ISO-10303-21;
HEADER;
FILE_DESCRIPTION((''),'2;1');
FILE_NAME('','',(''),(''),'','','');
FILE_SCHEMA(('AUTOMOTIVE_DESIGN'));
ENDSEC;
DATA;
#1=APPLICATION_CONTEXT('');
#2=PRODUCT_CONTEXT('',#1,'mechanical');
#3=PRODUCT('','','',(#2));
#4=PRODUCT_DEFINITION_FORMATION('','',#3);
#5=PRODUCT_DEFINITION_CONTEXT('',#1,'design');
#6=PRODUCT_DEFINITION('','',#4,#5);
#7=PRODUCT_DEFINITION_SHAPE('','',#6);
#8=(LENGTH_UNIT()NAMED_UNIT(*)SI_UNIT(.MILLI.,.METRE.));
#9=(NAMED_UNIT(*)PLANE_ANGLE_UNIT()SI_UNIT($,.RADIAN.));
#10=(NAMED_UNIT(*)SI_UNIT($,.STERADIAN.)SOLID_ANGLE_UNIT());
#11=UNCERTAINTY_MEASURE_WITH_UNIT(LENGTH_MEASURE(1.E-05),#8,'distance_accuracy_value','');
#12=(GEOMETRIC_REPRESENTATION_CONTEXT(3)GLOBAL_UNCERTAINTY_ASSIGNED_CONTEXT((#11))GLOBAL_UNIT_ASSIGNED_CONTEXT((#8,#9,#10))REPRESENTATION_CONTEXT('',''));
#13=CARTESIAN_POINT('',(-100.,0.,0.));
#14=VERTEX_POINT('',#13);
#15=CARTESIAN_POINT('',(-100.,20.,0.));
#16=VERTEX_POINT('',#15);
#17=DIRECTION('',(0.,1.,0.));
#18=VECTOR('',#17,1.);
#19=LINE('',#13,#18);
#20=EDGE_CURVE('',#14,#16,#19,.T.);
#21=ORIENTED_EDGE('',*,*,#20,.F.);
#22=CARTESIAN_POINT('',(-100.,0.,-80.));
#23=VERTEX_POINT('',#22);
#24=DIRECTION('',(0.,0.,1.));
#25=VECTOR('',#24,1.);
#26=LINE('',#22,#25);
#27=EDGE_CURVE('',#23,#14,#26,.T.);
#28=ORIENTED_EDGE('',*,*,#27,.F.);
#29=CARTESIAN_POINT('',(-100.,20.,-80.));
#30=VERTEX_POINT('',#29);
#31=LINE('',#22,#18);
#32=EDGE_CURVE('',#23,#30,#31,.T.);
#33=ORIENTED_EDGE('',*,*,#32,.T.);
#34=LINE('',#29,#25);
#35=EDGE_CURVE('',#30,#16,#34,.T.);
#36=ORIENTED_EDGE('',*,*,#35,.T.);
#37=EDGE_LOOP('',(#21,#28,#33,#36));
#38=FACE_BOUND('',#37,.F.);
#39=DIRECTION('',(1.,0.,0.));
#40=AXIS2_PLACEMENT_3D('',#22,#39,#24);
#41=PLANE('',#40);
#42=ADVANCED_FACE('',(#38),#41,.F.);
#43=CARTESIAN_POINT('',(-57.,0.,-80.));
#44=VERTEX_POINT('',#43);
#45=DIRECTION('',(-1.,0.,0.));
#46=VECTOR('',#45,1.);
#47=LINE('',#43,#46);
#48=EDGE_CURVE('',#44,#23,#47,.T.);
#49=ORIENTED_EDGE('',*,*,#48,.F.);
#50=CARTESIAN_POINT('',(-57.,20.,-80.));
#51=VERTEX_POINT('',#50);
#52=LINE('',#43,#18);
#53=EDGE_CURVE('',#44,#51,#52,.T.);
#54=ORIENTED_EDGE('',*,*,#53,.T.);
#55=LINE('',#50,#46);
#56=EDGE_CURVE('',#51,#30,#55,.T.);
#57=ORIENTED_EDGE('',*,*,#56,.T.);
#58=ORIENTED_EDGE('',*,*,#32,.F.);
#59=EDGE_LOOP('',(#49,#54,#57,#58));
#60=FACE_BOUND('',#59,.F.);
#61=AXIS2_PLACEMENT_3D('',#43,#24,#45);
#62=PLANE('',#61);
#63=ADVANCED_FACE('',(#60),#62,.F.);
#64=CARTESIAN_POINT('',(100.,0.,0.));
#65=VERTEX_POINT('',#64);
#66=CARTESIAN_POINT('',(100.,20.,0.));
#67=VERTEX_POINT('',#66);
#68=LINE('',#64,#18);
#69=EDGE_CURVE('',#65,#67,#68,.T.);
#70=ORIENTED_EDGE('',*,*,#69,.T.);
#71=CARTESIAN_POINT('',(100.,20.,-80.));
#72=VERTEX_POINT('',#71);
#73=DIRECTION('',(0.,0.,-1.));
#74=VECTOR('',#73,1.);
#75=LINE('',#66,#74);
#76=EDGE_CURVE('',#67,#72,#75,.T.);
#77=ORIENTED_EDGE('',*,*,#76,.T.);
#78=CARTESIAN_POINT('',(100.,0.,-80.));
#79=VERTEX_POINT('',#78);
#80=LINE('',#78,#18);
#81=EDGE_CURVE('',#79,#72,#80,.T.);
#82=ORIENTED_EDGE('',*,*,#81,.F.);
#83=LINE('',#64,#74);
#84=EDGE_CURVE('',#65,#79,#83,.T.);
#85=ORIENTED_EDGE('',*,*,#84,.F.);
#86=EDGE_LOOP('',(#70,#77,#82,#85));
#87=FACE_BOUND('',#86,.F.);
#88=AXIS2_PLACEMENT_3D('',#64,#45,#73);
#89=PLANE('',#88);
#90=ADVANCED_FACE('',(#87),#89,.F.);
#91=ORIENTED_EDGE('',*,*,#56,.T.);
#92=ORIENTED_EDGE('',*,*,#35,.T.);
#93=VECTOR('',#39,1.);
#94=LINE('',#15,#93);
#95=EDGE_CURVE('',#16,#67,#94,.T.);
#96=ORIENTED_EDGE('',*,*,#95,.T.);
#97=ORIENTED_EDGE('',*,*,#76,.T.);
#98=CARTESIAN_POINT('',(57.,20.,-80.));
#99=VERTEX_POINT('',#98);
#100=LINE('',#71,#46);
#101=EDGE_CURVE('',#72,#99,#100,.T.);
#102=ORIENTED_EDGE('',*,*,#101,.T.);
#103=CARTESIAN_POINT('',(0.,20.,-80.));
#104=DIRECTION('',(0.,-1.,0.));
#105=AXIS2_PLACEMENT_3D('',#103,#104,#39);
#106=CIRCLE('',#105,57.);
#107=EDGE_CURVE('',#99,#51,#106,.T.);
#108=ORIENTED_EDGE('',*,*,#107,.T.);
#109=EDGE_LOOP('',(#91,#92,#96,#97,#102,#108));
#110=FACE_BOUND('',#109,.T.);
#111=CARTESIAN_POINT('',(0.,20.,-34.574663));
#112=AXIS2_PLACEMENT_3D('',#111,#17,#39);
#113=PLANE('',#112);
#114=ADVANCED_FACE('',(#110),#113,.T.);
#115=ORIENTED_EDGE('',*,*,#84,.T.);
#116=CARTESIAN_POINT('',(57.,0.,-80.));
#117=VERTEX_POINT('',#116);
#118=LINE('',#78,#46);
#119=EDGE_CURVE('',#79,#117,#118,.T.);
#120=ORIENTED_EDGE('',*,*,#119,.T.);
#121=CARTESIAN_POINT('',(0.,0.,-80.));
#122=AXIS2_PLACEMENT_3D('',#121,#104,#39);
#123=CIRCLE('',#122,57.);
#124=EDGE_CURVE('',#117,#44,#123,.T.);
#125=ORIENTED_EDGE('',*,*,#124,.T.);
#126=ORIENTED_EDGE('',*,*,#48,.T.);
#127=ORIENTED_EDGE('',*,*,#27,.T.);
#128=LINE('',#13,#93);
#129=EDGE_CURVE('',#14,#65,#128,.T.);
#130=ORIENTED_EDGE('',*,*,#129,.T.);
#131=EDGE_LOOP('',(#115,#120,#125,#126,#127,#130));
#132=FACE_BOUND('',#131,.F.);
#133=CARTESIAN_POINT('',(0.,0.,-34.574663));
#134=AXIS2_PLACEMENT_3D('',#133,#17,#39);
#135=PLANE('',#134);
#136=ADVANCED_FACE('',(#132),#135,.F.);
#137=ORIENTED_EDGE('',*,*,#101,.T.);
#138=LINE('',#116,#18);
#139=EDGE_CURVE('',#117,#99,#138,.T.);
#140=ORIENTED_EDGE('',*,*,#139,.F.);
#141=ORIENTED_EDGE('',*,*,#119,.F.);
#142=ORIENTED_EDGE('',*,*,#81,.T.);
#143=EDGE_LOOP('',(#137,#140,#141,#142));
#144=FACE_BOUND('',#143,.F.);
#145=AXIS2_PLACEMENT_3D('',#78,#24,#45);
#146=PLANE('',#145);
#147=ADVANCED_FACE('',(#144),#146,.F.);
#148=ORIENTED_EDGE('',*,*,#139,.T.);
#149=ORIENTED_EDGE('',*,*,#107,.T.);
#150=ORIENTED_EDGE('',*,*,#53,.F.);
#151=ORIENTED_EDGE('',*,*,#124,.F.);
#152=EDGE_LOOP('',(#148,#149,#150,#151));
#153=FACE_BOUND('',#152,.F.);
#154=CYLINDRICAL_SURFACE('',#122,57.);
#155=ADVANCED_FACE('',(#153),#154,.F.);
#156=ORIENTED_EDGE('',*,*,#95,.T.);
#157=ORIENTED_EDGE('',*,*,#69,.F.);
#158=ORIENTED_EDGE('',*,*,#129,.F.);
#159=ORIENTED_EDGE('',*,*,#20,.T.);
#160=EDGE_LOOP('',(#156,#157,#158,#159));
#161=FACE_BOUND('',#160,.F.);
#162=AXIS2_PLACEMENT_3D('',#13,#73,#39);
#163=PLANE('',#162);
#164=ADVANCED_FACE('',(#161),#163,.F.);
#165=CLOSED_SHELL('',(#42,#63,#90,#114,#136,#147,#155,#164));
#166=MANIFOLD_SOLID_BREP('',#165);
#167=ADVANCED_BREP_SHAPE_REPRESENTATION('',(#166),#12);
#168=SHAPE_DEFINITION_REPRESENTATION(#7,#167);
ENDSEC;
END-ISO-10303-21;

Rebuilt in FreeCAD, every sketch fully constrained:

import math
import FreeCAD as App
import Part
import Sketcher
Q = App.Units.Quantity

doc = App.newDocument("Part")
body = doc.addObject("PartDesign::Body", "Body")

# Sketch on XZ plane
sketch1 = body.newObject("Sketcher::SketchObject", "Sketch")
sketch1.AttachmentSupport = (doc.getObject("XZ_Plane"), [""])
sketch1.MapMode = "FlatFace"
sketch1.addGeometry(Part.LineSegment(App.Vector(-100, 0, 0), App.Vector(100, 0, 0)), False)
sketch1.addGeometry(Part.LineSegment(App.Vector(100, 0, 0), App.Vector(100, -80, 0)), False)
sketch1.addGeometry(Part.LineSegment(App.Vector(100, -80, 0), App.Vector(57, -80, 0)), False)
sketch1.addGeometry(Part.ArcOfCircle(Part.Circle(App.Vector(0, -80, 0), App.Vector(0, 0, 1), 57), math.radians(0), math.radians(180)), False)
sketch1.addGeometry(Part.LineSegment(App.Vector(-57, -80, 0), App.Vector(-100, -80, 0)), False)
sketch1.addGeometry(Part.LineSegment(App.Vector(-100, -80, 0), App.Vector(-100, 0, 0)), False)
sketch1.addConstraint(Sketcher.Constraint("Coincident", 0, 2, 1, 1))
sketch1.addConstraint(Sketcher.Constraint("Coincident", 1, 2, 2, 1))
sketch1.addConstraint(Sketcher.Constraint("Coincident", 2, 2, 3, 1))
sketch1.addConstraint(Sketcher.Constraint("Coincident", 3, 2, 4, 1))
sketch1.addConstraint(Sketcher.Constraint("Coincident", 4, 2, 5, 1))
sketch1.addConstraint(Sketcher.Constraint("Coincident", 5, 2, 0, 1))
sketch1.addConstraint(Sketcher.Constraint("Horizontal", 0))
sketch1.addConstraint(Sketcher.Constraint("Vertical", 1))
sketch1.addConstraint(Sketcher.Constraint("Horizontal", 2))
sketch1.addConstraint(Sketcher.Constraint("Horizontal", 4))
sketch1.addConstraint(Sketcher.Constraint("Vertical", 5))
sketch1.addConstraint(Sketcher.Constraint("Symmetric", 0, 2, 5, 2, -1, 1))
sketch1.addConstraint(Sketcher.Constraint("Symmetric", 2, 2, 3, 2, -2))
sketch1.addConstraint(Sketcher.Constraint("Horizontal", 3, 3, 1, 2))
sketch1.addConstraint(Sketcher.Constraint("Radius", 3, Q("57 mm")))
sketch1.addConstraint(Sketcher.Constraint("DistanceX", 0, 1, 0, 2, Q("200 mm")))
sketch1.addConstraint(Sketcher.Constraint("DistanceY", 1, 2, 1, 1, Q("80 mm")))
pad1 = body.newObject("PartDesign::Pad", "Pad")
pad1.Profile = sketch1
pad1.Length = 20
pad1.Reversed = True

doc.recompute()
